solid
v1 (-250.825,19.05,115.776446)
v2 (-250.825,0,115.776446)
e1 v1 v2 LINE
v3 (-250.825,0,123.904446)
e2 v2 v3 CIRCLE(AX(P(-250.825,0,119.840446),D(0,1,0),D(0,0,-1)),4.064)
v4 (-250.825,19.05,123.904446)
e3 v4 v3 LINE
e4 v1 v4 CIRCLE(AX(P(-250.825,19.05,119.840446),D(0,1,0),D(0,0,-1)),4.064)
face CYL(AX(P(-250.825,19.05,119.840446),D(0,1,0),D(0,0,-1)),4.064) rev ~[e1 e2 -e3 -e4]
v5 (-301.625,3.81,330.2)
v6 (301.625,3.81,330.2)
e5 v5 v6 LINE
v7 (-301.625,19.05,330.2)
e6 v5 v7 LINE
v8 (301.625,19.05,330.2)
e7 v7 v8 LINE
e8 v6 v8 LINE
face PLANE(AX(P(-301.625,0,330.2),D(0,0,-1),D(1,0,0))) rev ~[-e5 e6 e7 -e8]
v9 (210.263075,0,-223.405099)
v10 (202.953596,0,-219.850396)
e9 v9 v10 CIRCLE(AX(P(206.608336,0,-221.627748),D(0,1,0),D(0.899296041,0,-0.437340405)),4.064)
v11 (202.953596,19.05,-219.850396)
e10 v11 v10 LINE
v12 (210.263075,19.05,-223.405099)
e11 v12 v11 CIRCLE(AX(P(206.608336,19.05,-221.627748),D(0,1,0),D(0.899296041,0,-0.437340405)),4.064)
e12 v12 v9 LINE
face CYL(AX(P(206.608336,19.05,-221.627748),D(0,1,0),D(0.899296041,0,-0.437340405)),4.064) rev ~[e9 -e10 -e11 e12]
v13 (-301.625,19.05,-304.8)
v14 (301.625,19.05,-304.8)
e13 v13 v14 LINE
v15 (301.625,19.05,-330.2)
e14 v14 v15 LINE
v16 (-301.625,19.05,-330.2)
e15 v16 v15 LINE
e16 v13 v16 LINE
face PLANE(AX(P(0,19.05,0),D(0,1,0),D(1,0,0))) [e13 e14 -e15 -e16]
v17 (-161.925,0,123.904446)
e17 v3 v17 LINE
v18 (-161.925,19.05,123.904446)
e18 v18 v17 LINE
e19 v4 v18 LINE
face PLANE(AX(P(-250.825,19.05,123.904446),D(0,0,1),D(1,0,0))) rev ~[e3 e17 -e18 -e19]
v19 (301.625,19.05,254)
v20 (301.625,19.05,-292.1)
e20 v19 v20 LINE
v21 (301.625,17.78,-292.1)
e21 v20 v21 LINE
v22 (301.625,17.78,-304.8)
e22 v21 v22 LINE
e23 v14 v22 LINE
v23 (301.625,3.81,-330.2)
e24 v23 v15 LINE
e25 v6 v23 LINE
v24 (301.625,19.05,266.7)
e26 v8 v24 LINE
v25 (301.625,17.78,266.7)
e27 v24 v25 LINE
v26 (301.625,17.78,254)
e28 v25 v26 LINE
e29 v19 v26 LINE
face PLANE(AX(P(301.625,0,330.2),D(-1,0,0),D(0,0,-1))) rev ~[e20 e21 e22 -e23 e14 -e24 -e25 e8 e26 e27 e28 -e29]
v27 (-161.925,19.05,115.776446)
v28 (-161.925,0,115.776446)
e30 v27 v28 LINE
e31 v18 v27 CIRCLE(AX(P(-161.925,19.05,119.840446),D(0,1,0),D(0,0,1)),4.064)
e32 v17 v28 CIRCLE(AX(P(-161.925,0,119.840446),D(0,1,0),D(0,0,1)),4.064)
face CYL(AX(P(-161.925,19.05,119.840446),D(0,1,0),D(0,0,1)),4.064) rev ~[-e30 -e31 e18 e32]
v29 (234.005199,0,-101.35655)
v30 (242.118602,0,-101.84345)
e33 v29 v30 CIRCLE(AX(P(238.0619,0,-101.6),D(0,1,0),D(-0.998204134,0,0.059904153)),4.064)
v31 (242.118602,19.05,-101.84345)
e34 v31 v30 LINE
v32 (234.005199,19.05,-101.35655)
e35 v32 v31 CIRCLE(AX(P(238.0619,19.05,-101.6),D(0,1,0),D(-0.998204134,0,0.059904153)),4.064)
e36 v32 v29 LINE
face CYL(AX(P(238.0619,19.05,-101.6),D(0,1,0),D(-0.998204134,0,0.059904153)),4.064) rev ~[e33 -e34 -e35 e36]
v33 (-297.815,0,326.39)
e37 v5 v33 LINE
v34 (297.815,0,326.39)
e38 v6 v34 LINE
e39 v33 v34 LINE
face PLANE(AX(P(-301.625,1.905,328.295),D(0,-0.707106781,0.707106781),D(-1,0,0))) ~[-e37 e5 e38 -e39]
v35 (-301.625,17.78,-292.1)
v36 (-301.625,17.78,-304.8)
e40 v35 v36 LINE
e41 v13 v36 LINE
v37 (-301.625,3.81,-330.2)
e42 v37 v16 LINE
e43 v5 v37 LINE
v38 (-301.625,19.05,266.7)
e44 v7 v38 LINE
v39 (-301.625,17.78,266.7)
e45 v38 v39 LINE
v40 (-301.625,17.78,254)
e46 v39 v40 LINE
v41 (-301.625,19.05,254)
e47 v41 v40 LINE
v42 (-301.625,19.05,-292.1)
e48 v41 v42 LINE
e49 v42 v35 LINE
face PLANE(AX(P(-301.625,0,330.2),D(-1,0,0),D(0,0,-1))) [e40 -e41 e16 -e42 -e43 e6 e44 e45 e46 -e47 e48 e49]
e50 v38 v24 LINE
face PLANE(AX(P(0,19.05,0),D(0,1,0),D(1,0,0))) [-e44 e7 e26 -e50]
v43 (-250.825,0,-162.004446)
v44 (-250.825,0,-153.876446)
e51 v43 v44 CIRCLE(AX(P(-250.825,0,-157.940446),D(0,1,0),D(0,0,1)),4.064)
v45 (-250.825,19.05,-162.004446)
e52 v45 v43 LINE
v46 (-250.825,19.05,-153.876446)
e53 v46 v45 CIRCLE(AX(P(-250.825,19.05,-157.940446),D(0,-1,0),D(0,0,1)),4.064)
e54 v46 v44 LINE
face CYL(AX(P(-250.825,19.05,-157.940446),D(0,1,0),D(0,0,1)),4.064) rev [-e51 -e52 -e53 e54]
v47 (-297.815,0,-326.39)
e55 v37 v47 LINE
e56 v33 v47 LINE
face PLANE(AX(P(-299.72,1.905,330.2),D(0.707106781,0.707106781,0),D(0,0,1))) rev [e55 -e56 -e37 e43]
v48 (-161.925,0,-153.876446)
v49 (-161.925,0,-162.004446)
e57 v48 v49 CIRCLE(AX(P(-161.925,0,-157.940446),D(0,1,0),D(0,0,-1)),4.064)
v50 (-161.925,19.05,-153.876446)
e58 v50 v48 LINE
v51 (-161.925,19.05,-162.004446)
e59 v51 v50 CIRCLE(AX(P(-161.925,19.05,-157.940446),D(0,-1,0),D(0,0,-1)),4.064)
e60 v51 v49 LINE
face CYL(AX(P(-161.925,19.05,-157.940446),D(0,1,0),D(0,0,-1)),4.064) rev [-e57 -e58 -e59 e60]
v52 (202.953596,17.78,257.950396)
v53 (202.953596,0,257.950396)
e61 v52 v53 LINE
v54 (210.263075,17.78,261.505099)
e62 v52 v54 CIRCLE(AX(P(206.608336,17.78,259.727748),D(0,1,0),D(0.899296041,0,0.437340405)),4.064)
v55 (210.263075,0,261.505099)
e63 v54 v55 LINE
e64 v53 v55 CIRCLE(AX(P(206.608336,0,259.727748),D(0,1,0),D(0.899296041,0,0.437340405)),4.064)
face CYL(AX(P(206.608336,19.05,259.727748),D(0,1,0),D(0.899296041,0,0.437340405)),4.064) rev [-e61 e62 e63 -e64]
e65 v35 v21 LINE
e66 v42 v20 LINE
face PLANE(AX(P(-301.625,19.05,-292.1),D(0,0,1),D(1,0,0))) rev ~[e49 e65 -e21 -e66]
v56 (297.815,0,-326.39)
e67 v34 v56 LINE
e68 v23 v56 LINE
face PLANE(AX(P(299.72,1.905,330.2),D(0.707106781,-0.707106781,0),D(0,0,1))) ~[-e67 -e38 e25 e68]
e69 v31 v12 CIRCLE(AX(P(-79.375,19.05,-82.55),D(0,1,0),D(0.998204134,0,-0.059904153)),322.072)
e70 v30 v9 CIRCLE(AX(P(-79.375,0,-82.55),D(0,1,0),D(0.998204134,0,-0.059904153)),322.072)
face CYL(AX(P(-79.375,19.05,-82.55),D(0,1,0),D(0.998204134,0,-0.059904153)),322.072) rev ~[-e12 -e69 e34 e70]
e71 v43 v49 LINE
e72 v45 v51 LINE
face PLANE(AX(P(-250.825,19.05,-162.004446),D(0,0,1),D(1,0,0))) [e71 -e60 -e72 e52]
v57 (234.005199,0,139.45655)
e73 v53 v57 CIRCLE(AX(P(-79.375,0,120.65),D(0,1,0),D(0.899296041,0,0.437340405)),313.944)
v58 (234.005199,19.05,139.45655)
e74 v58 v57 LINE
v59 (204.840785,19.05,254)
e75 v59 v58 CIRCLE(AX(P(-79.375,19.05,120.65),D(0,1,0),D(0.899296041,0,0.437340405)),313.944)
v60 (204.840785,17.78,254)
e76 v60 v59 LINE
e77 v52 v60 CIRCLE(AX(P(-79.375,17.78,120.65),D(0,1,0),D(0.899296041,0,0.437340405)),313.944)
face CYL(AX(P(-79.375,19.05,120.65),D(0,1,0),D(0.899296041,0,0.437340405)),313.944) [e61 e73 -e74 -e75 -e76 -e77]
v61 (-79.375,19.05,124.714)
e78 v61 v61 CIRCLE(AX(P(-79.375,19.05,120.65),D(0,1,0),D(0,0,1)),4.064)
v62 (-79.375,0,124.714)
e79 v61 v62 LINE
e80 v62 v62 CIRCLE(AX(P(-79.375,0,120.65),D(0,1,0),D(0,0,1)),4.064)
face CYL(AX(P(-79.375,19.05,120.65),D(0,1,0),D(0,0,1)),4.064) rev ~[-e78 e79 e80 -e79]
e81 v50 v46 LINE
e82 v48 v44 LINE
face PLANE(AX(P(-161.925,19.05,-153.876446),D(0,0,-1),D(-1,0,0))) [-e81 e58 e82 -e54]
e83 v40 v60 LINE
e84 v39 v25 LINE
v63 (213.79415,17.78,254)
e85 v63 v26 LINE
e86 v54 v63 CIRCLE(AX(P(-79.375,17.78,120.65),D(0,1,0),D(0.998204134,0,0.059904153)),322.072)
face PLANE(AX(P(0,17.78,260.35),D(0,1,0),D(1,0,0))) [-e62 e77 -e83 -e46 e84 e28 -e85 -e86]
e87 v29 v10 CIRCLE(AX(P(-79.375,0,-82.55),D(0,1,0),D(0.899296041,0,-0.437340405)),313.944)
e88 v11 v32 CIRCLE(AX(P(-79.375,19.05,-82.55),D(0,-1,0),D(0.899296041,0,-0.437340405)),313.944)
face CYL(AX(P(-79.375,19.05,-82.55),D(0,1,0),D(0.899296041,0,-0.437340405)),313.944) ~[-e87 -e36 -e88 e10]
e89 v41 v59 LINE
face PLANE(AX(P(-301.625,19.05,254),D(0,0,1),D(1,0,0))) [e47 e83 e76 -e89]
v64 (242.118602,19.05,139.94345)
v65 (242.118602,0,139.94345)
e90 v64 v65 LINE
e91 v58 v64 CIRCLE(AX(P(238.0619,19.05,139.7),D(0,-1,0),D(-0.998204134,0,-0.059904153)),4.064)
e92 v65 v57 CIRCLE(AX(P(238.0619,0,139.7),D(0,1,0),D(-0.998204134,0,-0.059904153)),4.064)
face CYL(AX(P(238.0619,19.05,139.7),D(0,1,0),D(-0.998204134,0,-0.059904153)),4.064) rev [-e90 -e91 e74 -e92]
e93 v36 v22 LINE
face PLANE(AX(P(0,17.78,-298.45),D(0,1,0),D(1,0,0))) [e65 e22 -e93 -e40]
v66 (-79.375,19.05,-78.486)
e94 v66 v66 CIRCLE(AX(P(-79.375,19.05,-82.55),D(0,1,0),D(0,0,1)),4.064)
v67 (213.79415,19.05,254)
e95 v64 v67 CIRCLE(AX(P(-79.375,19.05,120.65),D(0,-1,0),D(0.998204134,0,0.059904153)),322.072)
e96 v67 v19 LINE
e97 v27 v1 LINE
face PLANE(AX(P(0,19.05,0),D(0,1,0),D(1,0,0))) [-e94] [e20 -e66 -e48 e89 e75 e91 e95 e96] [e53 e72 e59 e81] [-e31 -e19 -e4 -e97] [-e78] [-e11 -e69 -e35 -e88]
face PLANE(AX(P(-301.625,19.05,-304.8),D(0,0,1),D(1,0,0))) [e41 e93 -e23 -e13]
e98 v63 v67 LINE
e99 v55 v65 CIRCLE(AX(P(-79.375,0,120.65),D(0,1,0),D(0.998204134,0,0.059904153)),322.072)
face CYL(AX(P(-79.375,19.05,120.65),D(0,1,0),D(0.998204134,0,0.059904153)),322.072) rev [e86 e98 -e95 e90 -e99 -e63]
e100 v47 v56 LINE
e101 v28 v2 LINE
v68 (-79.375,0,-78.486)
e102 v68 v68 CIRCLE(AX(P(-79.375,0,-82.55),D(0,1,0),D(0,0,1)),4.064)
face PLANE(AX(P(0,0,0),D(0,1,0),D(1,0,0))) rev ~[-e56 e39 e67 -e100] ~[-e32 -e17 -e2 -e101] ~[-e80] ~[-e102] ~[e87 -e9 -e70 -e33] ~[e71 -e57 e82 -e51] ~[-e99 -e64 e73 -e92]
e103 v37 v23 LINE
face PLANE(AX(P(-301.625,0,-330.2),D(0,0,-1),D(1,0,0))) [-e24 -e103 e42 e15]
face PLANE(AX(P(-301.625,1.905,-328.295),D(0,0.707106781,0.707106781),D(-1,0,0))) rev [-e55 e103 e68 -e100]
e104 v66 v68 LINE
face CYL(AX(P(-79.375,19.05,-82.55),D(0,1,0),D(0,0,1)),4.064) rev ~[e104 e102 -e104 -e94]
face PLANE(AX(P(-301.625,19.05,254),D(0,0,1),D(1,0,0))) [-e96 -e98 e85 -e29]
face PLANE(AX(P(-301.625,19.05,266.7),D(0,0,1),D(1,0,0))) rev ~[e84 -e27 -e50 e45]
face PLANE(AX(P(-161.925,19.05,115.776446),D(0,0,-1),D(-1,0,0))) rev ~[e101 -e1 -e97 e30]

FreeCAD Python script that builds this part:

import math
import FreeCAD as App
import Part
import Sketcher

V = App.Vector
Q = App.Units.Quantity


def edges_at(feature, points):
    """Names of the edges that pass closest to the given points."""
    edges = feature.Shape.Edges
    near = lambda p: min(range(len(edges)), key=lambda i: edges[i].distToShape(Part.Vertex(*p))[0])
    return sorted({f"Edge{near(p) + 1}" for p in points})

doc = App.newDocument("Part")
body = doc.addObject("PartDesign::Body", "Body")

sketch1 = body.newObject("Sketcher::SketchObject", "Sketch")
sketch1.AttachmentSupport = (doc.getObject("XZ_Plane"), [""])
sketch1.MapMode = "FlatFace"
sketch1.addGeometry(Part.LineSegment(V(-302, -330, 0), V(-302, 330, 0)), False)
sketch1.addGeometry(Part.LineSegment(V(-302, 330, 0), V(302, 330, 0)), False)
sketch1.addGeometry(Part.LineSegment(V(302, 330, 0), V(302, -330, 0)), False)
sketch1.addGeometry(Part.LineSegment(V(302, -330, 0), V(-302, -330, 0)), False)
sketch1.addConstraint(Sketcher.Constraint("Coincident", 0, 2, 1, 1))
sketch1.addConstraint(Sketcher.Constraint("Coincident", 1, 2, 2, 1))
sketch1.addConstraint(Sketcher.Constraint("Coincident", 2, 2, 3, 1))
sketch1.addConstraint(Sketcher.Constraint("Coincident", 3, 2, 0, 1))
sketch1.addConstraint(Sketcher.Constraint("Vertical", 0))
sketch1.addConstraint(Sketcher.Constraint("Horizontal", 1))
sketch1.addConstraint(Sketcher.Constraint("Vertical", 2))
sketch1.addConstraint(Sketcher.Constraint("Horizontal", 3))
sketch1.addConstraint(Sketcher.Constraint("Symmetric", 0, 2, 2, 2, -1, 1))
sketch1.addConstraint(Sketcher.Constraint("DistanceY", 0, 1, 0, 2, Q("26 in")))
sketch1.addConstraint(Sketcher.Constraint("DistanceX", 1, 1, 1, 2, Q("23.75 in")))
pad1 = body.newObject("PartDesign::Pad", "Pad")
pad1.Profile = sketch1
pad1.Length = Q("0.75 in")
pad1.Reversed = True
doc.recompute()

chamfer = body.newObject("PartDesign::Chamfer", "Chamfer")
chamfer.Base = (pad1, edges_at(pad1, [
    (0, 0, 330.2),
    (-301.625, 0, 0),
    (0, 0, -330.2),
    (301.625, 0, 0),
]))
chamfer.Size = Q("0.15 in")

sketch2 = body.newObject("Sketcher::SketchObject", "Sketch001")
sketch2.AttachmentSupport = (doc.getObject("XZ_Plane"), [""])
sketch2.MapMode = "FlatFace"
sketch2.AttachmentOffset = App.Placement(V(0, 0, -0.75 * 25.4), App.Rotation())
sketch2.addGeometry(Part.LineSegment(V(-161.9, -162, 0), V(-250.8, -162, 0)), False)
sketch2.addGeometry(Part.ArcOfCircle(Part.Circle(V(-250.8, -157.9, 0), V(0, 0, 1), 4.1), math.radians(90), math.radians(270)), False)
sketch2.addGeometry(Part.LineSegment(V(-250.8, -153.9, 0), V(-161.9, -153.9, 0)), False)
sketch2.addGeometry(Part.ArcOfCircle(Part.Circle(V(-161.9, -157.9, 0), V(0, 0, 1), 4.1), math.radians(-90), math.radians(90)), False)
sketch2.addGeometry(Part.LineSegment(V(-250.8, 123.9, 0), V(-161.9, 123.9, 0)), False)
sketch2.addGeometry(Part.ArcOfCircle(Part.Circle(V(-161.9, 119.8, 0), V(0, 0, 1), 4.1), math.radians(-90), math.radians(90)), False)
sketch2.addGeometry(Part.LineSegment(V(-161.9, 115.8, 0), V(-250.8, 115.8, 0)), False)
sketch2.addGeometry(Part.ArcOfCircle(Part.Circle(V(-250.8, 119.8, 0), V(0, 0, 1), 4.1), math.radians(90), math.radians(270)), False)
sketch2.addConstraint(Sketcher.Constraint("Tangent", 0, 2, 1, 2))
sketch2.addConstraint(Sketcher.Constraint("Tangent", 1, 1, 2, 1))
sketch2.addConstraint(Sketcher.Constraint("Tangent", 2, 2, 3, 2))
sketch2.addConstraint(Sketcher.Constraint("Tangent", 3, 1, 0, 1))
sketch2.addConstraint(Sketcher.Constraint("Tangent", 4, 2, 5, 2))
sketch2.addConstraint(Sketcher.Constraint("Tangent", 5, 1, 6, 1))
sketch2.addConstraint(Sketcher.Constraint("Tangent", 6, 2, 7, 2))
sketch2.addConstraint(Sketcher.Constraint("Tangent", 7, 1, 4, 1))
sketch2.addConstraint(Sketcher.Constraint("Horizontal", 0))
sketch2.addConstraint(Sketcher.Constraint("Horizontal", 2))
sketch2.addConstraint(Sketcher.Constraint("Horizontal", 4))
sketch2.addConstraint(Sketcher.Constraint("Horizontal", 6))
sketch2.addConstraint(Sketcher.Constraint("Equal", 3, 5))
sketch2.addConstraint(Sketcher.Constraint("Vertical", 3, 3, 5, 3))
sketch2.addConstraint(Sketcher.Constraint("Vertical", 1, 3, 7, 3))
sketch2.addConstraint(Sketcher.Constraint("Radius", 1, Q("0.16 in")))
sketch2.addConstraint(Sketcher.Constraint("DistanceX", 0, 2, 0, 1, Q("3.5 in")))
sketch2.addConstraint(Sketcher.Constraint("DistanceX", 1, 3, -1, 1, Q("9.875 in")))
sketch2.addConstraint(Sketcher.Constraint("DistanceY", 3, 3, 5, 3, Q("277.780892 mm")))
sketch2.addConstraint(Sketcher.Constraint("DistanceY", 1, 3, -1, 1, Q("157.940446 mm")))
pocket1 = body.newObject("PartDesign::Pocket", "Pocket")
pocket1.Profile = sketch2
pocket1.Type = "ThroughAll"
pocket1.Reversed = True

sketch3 = body.newObject("Sketcher::SketchObject", "Sketch002")
sketch3.AttachmentSupport = (doc.getObject("XZ_Plane"), [""])
sketch3.MapMode = "FlatFace"
sketch3.AttachmentOffset = App.Placement(V(0, 0, -0.75 * 25.4), App.Rotation())
sketch3.addGeometry(Part.Circle(V(-79.4, -82.5, 0), V(0, 0, 1), 4.1), False)
sketch3.addGeometry(Part.Circle(V(-79.4, 120.7, 0), V(0, 0, 1), 4.1), False)
sketch3.addConstraint(Sketcher.Constraint("Equal", 0, 1))
sketch3.addConstraint(Sketcher.Constraint("Vertical", 0, 3, 1, 3))
sketch3.addConstraint(Sketcher.Constraint("Diameter", 0, Q("0.32 in")))
sketch3.addConstraint(Sketcher.Constraint("DistanceY", 0, 3, 1, 3, Q("8 in")))
sketch3.addConstraint(Sketcher.Constraint("DistanceY", 0, 3, -1, 1, Q("3.25 in")))
sketch3.addConstraint(Sketcher.Constraint("DistanceX", 0, 3, -1, 1, Q("3.125 in")))
pocket2 = body.newObject("PartDesign::Pocket", "Pocket001")
pocket2.Profile = sketch3
pocket2.Type = "ThroughAll"
pocket2.Reversed = True

sketch4 = body.newObject("Sketcher::SketchObject", "Sketch003")
sketch4.AttachmentSupport = (doc.getObject("XZ_Plane"), [""])
sketch4.MapMode = "FlatFace"
sketch4.AttachmentOffset = App.Placement(V(0, 0, -0.75 * 25.4), App.Rotation())
sketch4.addGeometry(Part.ArcOfCircle(Part.Circle(V(-79.4, 120.7, 0), V(0, 0, 1), 322.1), math.radians(3), math.radians(26)), False)
sketch4.addGeometry(Part.ArcOfCircle(Part.Circle(V(238.1, 139.7, 0), V(0, 0, 1), 4.1), math.radians(-177), math.radians(3)), False)
sketch4.addGeometry(Part.ArcOfCircle(Part.Circle(V(-79.4, 120.7, 0), V(0, 0, 1), 313.9), math.radians(3), math.radians(26)), False)
sketch4.addGeometry(Part.ArcOfCircle(Part.Circle(V(206.6, 259.7, 0), V(0, 0, 1), 4.1), math.radians(26), math.radians(206)), False)
sketch4.addGeometry(Part.ArcOfCircle(Part.Circle(V(-79.4, -82.6, 0), V(0, 0, 1), 322.1), math.radians(-26), math.radians(-3)), False)
sketch4.addGeometry(Part.ArcOfCircle(Part.Circle(V(206.6, -221.6, 0), V(0, 0, 1), 4.1), math.radians(154), math.radians(334)), False)
sketch4.addGeometry(Part.ArcOfCircle(Part.Circle(V(-79.4, -82.6, 0), V(0, 0, 1), 313.9), math.radians(-26), math.radians(-3)), False)
sketch4.addGeometry(Part.ArcOfCircle(Part.Circle(V(238.1, -101.6, 0), V(0, 0, 1), 4.1), math.radians(-3), math.radians(177)), False)
sketch4.addConstraint(Sketcher.Constraint("Tangent", 0, 1, 1, 2))
sketch4.addConstraint(Sketcher.Constraint("Tangent", 1, 1, 2, 1))
sketch4.addConstraint(Sketcher.Constraint("Tangent", 2, 2, 3, 2))
sketch4.addConstraint(Sketcher.Constraint("Tangent", 3, 1, 0, 2))
sketch4.addConstraint(Sketcher.Constraint("Tangent", 4, 1, 5, 2))
sketch4.addConstraint(Sketcher.Constraint("Tangent", 5, 1, 6, 1))
sketch4.addConstraint(Sketcher.Constraint("Tangent", 6, 2, 7, 2))
sketch4.addConstraint(Sketcher.Constraint("Tangent", 7, 1, 4, 2))
sketch4.addConstraint(Sketcher.Constraint("Coincident", 2, 3, 0, 3))
sketch4.addConstraint(Sketcher.Constraint("Coincident", 6, 3, 4, 3))
sketch4.addConstraint(Sketcher.Constraint("Equal", 0, 4))
sketch4.addConstraint(Sketcher.Constraint("Equal", 3, 5))
sketch4.addConstraint(Sketcher.Constraint("Vertical", 2, 3, 4, 3))
sketch4.addConstraint(Sketcher.Constraint("Vertical", 3, 3, 5, 3))
sketch4.addConstraint(Sketcher.Constraint("Vertical", 1, 3, 7, 3))
sketch4.addConstraint(Sketcher.Constraint("Radius", 0, Q("12.68 in")))
sketch4.addConstraint(Sketcher.Constraint("Radius", 1, Q("0.16 in")))
sketch4.addConstraint(Sketcher.Constraint("DistanceY", 7, 3, -1, 1, Q("4 in")))
sketch4.addConstraint(Sketcher.Constraint("DistanceY", 4, 3, 2, 3, Q("8 in")))
sketch4.addConstraint(Sketcher.Constraint("DistanceY", -1, 1, 1, 3, Q("5.5 in")))
sketch4.addConstraint(Sketcher.Constraint("DistanceX", 0, 3, -1, 1, Q("3.125 in")))
sketch4.addConstraint(Sketcher.Constraint("DistanceY", -1, 1, 3, 1, Q("261.505099 mm")))
pocket3 = body.newObject("PartDesign::Pocket", "Pocket002")
pocket3.Profile = sketch4
pocket3.Type = "ThroughAll"
pocket3.Reversed = True

sketch5 = body.newObject("Sketcher::SketchObject", "Sketch004")
sketch5.AttachmentSupport = (doc.getObject("XZ_Plane"), [""])
sketch5.MapMode = "FlatFace"
sketch5.AttachmentOffset = App.Placement(V(0, 0, -0.75 * 25.4), App.Rotation())
sketch5.addGeometry(Part.LineSegment(V(-302, -305, 0), V(-302, -292, 0)), False)
sketch5.addGeometry(Part.LineSegment(V(-302, -292, 0), V(302, -292, 0)), False)
sketch5.addGeometry(Part.LineSegment(V(302, -292, 0), V(302, -305, 0)), False)
sketch5.addGeometry(Part.LineSegment(V(302, -305, 0), V(-302, -305, 0)), False)
sketch5.addGeometry(Part.LineSegment(V(-302, 254, 0), V(-302, 267, 0)), False)
sketch5.addGeometry(Part.LineSegment(V(-302, 267, 0), V(302, 267, 0)), False)
sketch5.addGeometry(Part.LineSegment(V(302, 267, 0), V(302, 254, 0)), False)
sketch5.addGeometry(Part.LineSegment(V(302, 254, 0), V(-302, 254, 0)), False)
sketch5.addConstraint(Sketcher.Constraint("Coincident", 0, 2, 1, 1))
sketch5.addConstraint(Sketcher.Constraint("Coincident", 1, 2, 2, 1))
sketch5.addConstraint(Sketcher.Constraint("Coincident", 2, 2, 3, 1))
sketch5.addConstraint(Sketcher.Constraint("Coincident", 3, 2, 0, 1))
sketch5.addConstraint(Sketcher.Constraint("Coincident", 4, 2, 5, 1))
sketch5.addConstraint(Sketcher.Constraint("Coincident", 5, 2, 6, 1))
sketch5.addConstraint(Sketcher.Constraint("Coincident", 6, 2, 7, 1))
sketch5.addConstraint(Sketcher.Constraint("Coincident", 7, 2, 4, 1))
sketch5.addConstraint(Sketcher.Constraint("Vertical", 0))
sketch5.addConstraint(Sketcher.Constraint("Horizontal", 1))
sketch5.addConstraint(Sketcher.Constraint("Vertical", 2))
sketch5.addConstraint(Sketcher.Constraint("Horizontal", 3))
sketch5.addConstraint(Sketcher.Constraint("Vertical", 4))
sketch5.addConstraint(Sketcher.Constraint("Horizontal", 5))
sketch5.addConstraint(Sketcher.Constraint("Vertical", 6))
sketch5.addConstraint(Sketcher.Constraint("Horizontal", 7))
sketch5.addConstraint(Sketcher.Constraint("Vertical", 3, 2, 4, 2))
sketch5.addConstraint(Sketcher.Constraint("Vertical", 2, 2, 5, 2))
sketch5.addConstraint(Sketcher.Constraint("Equal", 2, 4))
sketch5.addConstraint(Sketcher.Constraint("DistanceY", 0, 1, 0, 2, Q("0.5 in")))
sketch5.addConstraint(Sketcher.Constraint("DistanceY", 2, 2, -1, 1, Q("12 in")))
sketch5.addConstraint(Sketcher.Constraint("DistanceY", -1, 1, 6, 2, Q("10 in")))
sketch5.addConstraint(Sketcher.Constraint("DistanceX", 1, 1, 1, 2, Q("23.75 in")))
sketch5.addConstraint(Sketcher.Constraint("DistanceX", 0, 2, -1, 1, Q("11.875 in")))
pocket4 = body.newObject("PartDesign::Pocket", "Pocket003")
pocket4.Profile = sketch5
pocket4.Length = Q("0.05 in")
pocket4.Reversed = True

doc.recompute()
